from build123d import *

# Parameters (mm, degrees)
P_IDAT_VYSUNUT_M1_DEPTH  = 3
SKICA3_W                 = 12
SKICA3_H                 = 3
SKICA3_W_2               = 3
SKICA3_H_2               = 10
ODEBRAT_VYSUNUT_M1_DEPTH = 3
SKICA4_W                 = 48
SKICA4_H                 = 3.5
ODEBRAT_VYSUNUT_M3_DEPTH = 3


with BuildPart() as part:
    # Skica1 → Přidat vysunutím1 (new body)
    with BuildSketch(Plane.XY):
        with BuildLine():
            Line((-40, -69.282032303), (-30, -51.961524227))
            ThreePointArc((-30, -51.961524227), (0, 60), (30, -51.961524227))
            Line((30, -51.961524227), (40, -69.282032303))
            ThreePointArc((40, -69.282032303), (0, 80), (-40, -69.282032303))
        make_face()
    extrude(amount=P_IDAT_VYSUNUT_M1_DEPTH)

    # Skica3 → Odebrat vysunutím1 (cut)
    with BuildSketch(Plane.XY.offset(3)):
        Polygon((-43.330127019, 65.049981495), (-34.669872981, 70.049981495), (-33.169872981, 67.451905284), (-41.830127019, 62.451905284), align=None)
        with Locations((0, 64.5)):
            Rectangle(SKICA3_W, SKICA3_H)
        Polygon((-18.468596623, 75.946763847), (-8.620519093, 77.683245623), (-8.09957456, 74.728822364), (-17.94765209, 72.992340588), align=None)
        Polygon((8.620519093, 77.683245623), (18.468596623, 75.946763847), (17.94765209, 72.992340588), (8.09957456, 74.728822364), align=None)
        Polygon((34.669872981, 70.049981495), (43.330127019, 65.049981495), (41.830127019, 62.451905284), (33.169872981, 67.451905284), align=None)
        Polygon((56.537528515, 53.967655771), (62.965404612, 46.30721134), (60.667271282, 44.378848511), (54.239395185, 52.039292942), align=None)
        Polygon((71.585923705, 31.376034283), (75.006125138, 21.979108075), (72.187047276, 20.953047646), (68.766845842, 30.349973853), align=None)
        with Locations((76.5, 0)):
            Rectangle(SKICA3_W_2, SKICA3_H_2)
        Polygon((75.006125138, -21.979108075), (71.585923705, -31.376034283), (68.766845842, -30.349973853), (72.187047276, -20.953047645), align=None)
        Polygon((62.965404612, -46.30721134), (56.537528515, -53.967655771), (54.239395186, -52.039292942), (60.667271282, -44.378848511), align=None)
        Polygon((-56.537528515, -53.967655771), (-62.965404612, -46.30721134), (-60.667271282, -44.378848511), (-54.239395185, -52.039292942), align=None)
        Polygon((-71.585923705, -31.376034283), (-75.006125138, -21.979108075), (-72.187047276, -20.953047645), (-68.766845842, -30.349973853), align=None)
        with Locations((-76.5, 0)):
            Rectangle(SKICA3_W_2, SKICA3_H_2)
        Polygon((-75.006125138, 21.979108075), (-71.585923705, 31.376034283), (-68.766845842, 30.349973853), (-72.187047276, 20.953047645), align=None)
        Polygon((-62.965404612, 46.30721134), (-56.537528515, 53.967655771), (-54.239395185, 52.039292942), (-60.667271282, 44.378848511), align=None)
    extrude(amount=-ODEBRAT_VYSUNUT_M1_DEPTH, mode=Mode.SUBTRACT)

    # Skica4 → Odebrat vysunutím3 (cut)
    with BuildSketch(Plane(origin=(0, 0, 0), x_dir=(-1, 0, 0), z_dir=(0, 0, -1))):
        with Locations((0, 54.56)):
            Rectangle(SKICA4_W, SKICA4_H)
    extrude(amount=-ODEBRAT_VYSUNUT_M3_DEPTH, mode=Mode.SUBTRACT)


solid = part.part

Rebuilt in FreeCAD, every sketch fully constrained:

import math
import FreeCAD as App
import Part
import Sketcher
from FreeCAD import Vector
Q = App.Units.Quantity

doc = App.newDocument("Part")
body = doc.addObject("PartDesign::Body", "Body")

sketch1 = body.newObject("Sketcher::SketchObject", "Sketch")
sketch1.AttachmentSupport = (doc.getObject("XY_Plane"), [""])
sketch1.MapMode = "FlatFace"
sketch1.addGeometry(Part.LineSegment(Vector(-40, -69.282032, 0), Vector(-30, -51.961524, 0)), False)
sketch1.addGeometry(Part.ArcOfCircle(Part.Circle(Vector(0, 0, 0), Vector(0, 0, 1), 60), math.radians(-60), math.radians(240)), False)
sketch1.addGeometry(Part.LineSegment(Vector(30, -51.961524, 0), Vector(40, -69.282032, 0)), False)
sketch1.addGeometry(Part.ArcOfCircle(Part.Circle(Vector(0, 0, 0), Vector(0, 0, 1), 80), math.radians(-60), math.radians(240)), False)
sketch1.addConstraint(Sketcher.Constraint("Coincident", 0, 2, 1, 2))
sketch1.addConstraint(Sketcher.Constraint("Coincident", 1, 1, 2, 1))
sketch1.addConstraint(Sketcher.Constraint("Coincident", 2, 2, 3, 1))
sketch1.addConstraint(Sketcher.Constraint("Coincident", 3, 2, 0, 1))
sketch1.addConstraint(Sketcher.Constraint("Coincident", 1, 3, -1, 1))
sketch1.addConstraint(Sketcher.Constraint("Coincident", 3, 3, -1, 1))
sketch1.addConstraint(Sketcher.Constraint("Horizontal", 0, 2, 1, 1))
sketch1.addConstraint(Sketcher.Constraint("Horizontal", 2, 2, 3, 2))
sketch1.addConstraint(Sketcher.Constraint("Radius", 1, 60.0))
sketch1.addConstraint(Sketcher.Constraint("Radius", 3, 80.0))
sketch1.addConstraint(Sketcher.Constraint("Angle", 0, Q("60 deg")))
sketch1.addConstraint(Sketcher.Constraint("DistanceX", 0, 2, -1, 1, 30.0))
pad1 = body.newObject("PartDesign::Pad", "Pad")
pad1.Profile = sketch1
pad1.Length = 3

sketch2 = body.newObject("Sketcher::SketchObject", "Sketch001")
sketch2.AttachmentSupport = (doc.getObject("XY_Plane"), [""])
sketch2.MapMode = "FlatFace"
sketch2.AttachmentOffset = App.Placement(Vector(0, 0, 3), App.Rotation())
sketch2.addGeometry(Part.LineSegment(Vector(-34.669873, 70.049981, 0), Vector(-43.330127, 65.049981, 0)), False)
sketch2.addGeometry(Part.LineSegment(Vector(-43.330127, 65.049981, 0), Vector(-41.830127, 62.451905, 0)), False)
sketch2.addGeometry(Part.LineSegment(Vector(-41.830127, 62.451905, 0), Vector(-33.169873, 67.451905, 0)), False)
sketch2.addGeometry(Part.LineSegment(Vector(-33.169873, 67.451905, 0), Vector(-34.669873, 70.049981, 0)), False)
sketch2.addGeometry(Part.LineSegment(Vector(-6, 66, 0), Vector(-6, 63, 0)), False)
sketch2.addGeometry(Part.LineSegment(Vector(-6, 63, 0), Vector(6, 63, 0)), False)
sketch2.addGeometry(Part.LineSegment(Vector(6, 63, 0), Vector(6, 66, 0)), False)
sketch2.addGeometry(Part.LineSegment(Vector(6, 66, 0), Vector(-6, 66, 0)), False)
sketch2.addGeometry(Part.LineSegment(Vector(-8.620519, 77.683246, 0), Vector(-18.468597, 75.946764, 0)), False)
sketch2.addGeometry(Part.LineSegment(Vector(-18.468597, 75.946764, 0), Vector(-17.947652, 72.992341, 0)), False)
sketch2.addGeometry(Part.LineSegment(Vector(-17.947652, 72.992341, 0), Vector(-8.099575, 74.728822, 0)), False)
sketch2.addGeometry(Part.LineSegment(Vector(-8.099575, 74.728822, 0), Vector(-8.620519, 77.683246, 0)), False)
sketch2.addGeometry(Part.LineSegment(Vector(18.468597, 75.946764, 0), Vector(8.620519, 77.683246, 0)), False)
sketch2.addGeometry(Part.LineSegment(Vector(8.620519, 77.683246, 0), Vector(8.099575, 74.728822, 0)), False)
sketch2.addGeometry(Part.LineSegment(Vector(8.099575, 74.728822, 0), Vector(17.947652, 72.992341, 0)), False)
sketch2.addGeometry(Part.LineSegment(Vector(17.947652, 72.992341, 0), Vector(18.468597, 75.946764, 0)), False)
sketch2.addGeometry(Part.LineSegment(Vector(43.330127, 65.049981, 0), Vector(34.669873, 70.049981, 0)), False)
sketch2.addGeometry(Part.LineSegment(Vector(34.669873, 70.049981, 0), Vector(33.169873, 67.451905, 0)), False)
sketch2.addGeometry(Part.LineSegment(Vector(33.169873, 67.451905, 0), Vector(41.830127, 62.451905, 0)), False)
sketch2.addGeometry(Part.LineSegment(Vector(41.830127, 62.451905, 0), Vector(43.330127, 65.049981, 0)), False)
sketch2.addGeometry(Part.LineSegment(Vector(62.965405, 46.307211, 0), Vector(56.537529, 53.967656, 0)), False)
sketch2.addGeometry(Part.LineSegment(Vector(56.537529, 53.967656, 0), Vector(54.239395, 52.039293, 0)), False)
sketch2.addGeometry(Part.LineSegment(Vector(54.239395, 52.039293, 0), Vector(60.667271, 44.378849, 0)), False)
sketch2.addGeometry(Part.LineSegment(Vector(60.667271, 44.378849, 0), Vector(62.965405, 46.307211, 0)), False)
sketch2.addGeometry(Part.LineSegment(Vector(75.006125, 21.979108, 0), Vector(71.585924, 31.376034, 0)), False)
sketch2.addGeometry(Part.LineSegment(Vector(71.585924, 31.376034, 0), Vector(68.766846, 30.349974, 0)), False)
sketch2.addGeometry(Part.LineSegment(Vector(68.766846, 30.349974, 0), Vector(72.187047, 20.953048, 0)), False)
sketch2.addGeometry(Part.LineSegment(Vector(72.187047, 20.953048, 0), Vector(75.006125, 21.979108, 0)), False)
sketch2.addGeometry(Part.LineSegment(Vector(75, 5, 0), Vector(75, -5, 0)), False)
sketch2.addGeometry(Part.LineSegment(Vector(75, -5, 0), Vector(78, -5, 0)), False)
sketch2.addGeometry(Part.LineSegment(Vector(78, -5, 0), Vector(78, 5, 0)), False)
sketch2.addGeometry(Part.LineSegment(Vector(78, 5, 0), Vector(75, 5, 0)), False)
sketch2.addGeometry(Part.LineSegment(Vector(71.585924, -31.376034, 0), Vector(75.006125, -21.979108, 0)), False)
sketch2.addGeometry(Part.LineSegment(Vector(75.006125, -21.979108, 0), Vector(72.187047, -20.953048, 0)), False)
sketch2.addGeometry(Part.LineSegment(Vector(72.187047, -20.953048, 0), Vector(68.766846, -30.349974, 0)), False)
sketch2.addGeometry(Part.LineSegment(Vector(68.766846, -30.349974, 0), Vector(71.585924, -31.376034, 0)), False)
sketch2.addGeometry(Part.LineSegment(Vector(56.537529, -53.967656, 0), Vector(62.965405, -46.307211, 0)), False)
sketch2.addGeometry(Part.LineSegment(Vector(62.965405, -46.307211, 0), Vector(60.667271, -44.378849, 0)), False)
sketch2.addGeometry(Part.LineSegment(Vector(60.667271, -44.378849, 0), Vector(54.239395, -52.039293, 0)), False)
sketch2.addGeometry(Part.LineSegment(Vector(54.239395, -52.039293, 0), Vector(56.537529, -53.967656, 0)), False)
sketch2.addGeometry(Part.LineSegment(Vector(-62.965405, -46.307211, 0), Vector(-56.537529, -53.967656, 0)), False)
sketch2.addGeometry(Part.LineSegment(Vector(-56.537529, -53.967656, 0), Vector(-54.239395, -52.039293, 0)), False)
sketch2.addGeometry(Part.LineSegment(Vector(-54.239395, -52.039293, 0), Vector(-60.667271, -44.378849, 0)), False)
sketch2.addGeometry(Part.LineSegment(Vector(-60.667271, -44.378849, 0), Vector(-62.965405, -46.307211, 0)), False)
sketch2.addGeometry(Part.LineSegment(Vector(-75.006125, -21.979108, 0), Vector(-71.585924, -31.376034, 0)), False)
sketch2.addGeometry(Part.LineSegment(Vector(-71.585924, -31.376034, 0), Vector(-68.766846, -30.349974, 0)), False)
sketch2.addGeometry(Part.LineSegment(Vector(-68.766846, -30.349974, 0), Vector(-72.187047, -20.953048, 0)), False)
sketch2.addGeometry(Part.LineSegment(Vector(-72.187047, -20.953048, 0), Vector(-75.006125, -21.979108, 0)), False)
sketch2.addGeometry(Part.LineSegment(Vector(-78, 5, 0), Vector(-78, -5, 0)), False)
sketch2.addGeometry(Part.LineSegment(Vector(-78, -5, 0), Vector(-75, -5, 0)), False)
sketch2.addGeometry(Part.LineSegment(Vector(-75, -5, 0), Vector(-75, 5, 0)), False)
sketch2.addGeometry(Part.LineSegment(Vector(-75, 5, 0), Vector(-78, 5, 0)), False)
sketch2.addGeometry(Part.LineSegment(Vector(-71.585924, 31.376034, 0), Vector(-75.006125, 21.979108, 0)), False)
sketch2.addGeometry(Part.LineSegment(Vector(-75.006125, 21.979108, 0), Vector(-72.187047, 20.953048, 0)), False)
sketch2.addGeometry(Part.LineSegment(Vector(-72.187047, 20.953048, 0), Vector(-68.766846, 30.349974, 0)), False)
sketch2.addGeometry(Part.LineSegment(Vector(-68.766846, 30.349974, 0), Vector(-71.585924, 31.376034, 0)), False)
sketch2.addGeometry(Part.LineSegment(Vector(-56.537529, 53.967656, 0), Vector(-62.965405, 46.307211, 0)), False)
sketch2.addGeometry(Part.LineSegment(Vector(-62.965405, 46.307211, 0), Vector(-60.667271, 44.378849, 0)), False)
sketch2.addGeometry(Part.LineSegment(Vector(-60.667271, 44.378849, 0), Vector(-54.239395, 52.039293, 0)), False)
sketch2.addGeometry(Part.LineSegment(Vector(-54.239395, 52.039293, 0), Vector(-56.537529, 53.967656, 0)), False)
sketch2.addConstraint(Sketcher.Constraint("Coincident", 0, 2, 1, 1))
sketch2.addConstraint(Sketcher.Constraint("Coincident", 1, 2, 2, 1))
sketch2.addConstraint(Sketcher.Constraint("Coincident", 2, 2, 3, 1))
sketch2.addConstraint(Sketcher.Constraint("Coincident", 3, 2, 0, 1))
sketch2.addConstraint(Sketcher.Constraint("Coincident", 4, 2, 5, 1))
sketch2.addConstraint(Sketcher.Constraint("Coincident", 5, 2, 6, 1))
sketch2.addConstraint(Sketcher.Constraint("Coincident", 6, 2, 7, 1))
sketch2.addConstraint(Sketcher.Constraint("Coincident", 7, 2, 4, 1))
sketch2.addConstraint(Sketcher.Constraint("Coincident", 8, 2, 9, 1))
sketch2.addConstraint(Sketcher.Constraint("Coincident", 9, 2, 10, 1))
sketch2.addConstraint(Sketcher.Constraint("Coincident", 10, 2, 11, 1))
sketch2.addConstraint(Sketcher.Constraint("Coincident", 11, 2, 8, 1))
sketch2.addConstraint(Sketcher.Constraint("Coincident", 12, 2, 13, 1))
sketch2.addConstraint(Sketcher.Constraint("Coincident", 13, 2, 14, 1))
sketch2.addConstraint(Sketcher.Constraint("Coincident", 14, 2, 15, 1))
sketch2.addConstraint(Sketcher.Constraint("Coincident", 15, 2, 12, 1))
sketch2.addConstraint(Sketcher.Constraint("Coincident", 16, 2, 17, 1))
sketch2.addConstraint(Sketcher.Constraint("Coincident", 17, 2, 18, 1))
sketch2.addConstraint(Sketcher.Constraint("Coincident", 18, 2, 19, 1))
sketch2.addConstraint(Sketcher.Constraint("Coincident", 19, 2, 16, 1))
sketch2.addConstraint(Sketcher.Constraint("Coincident", 20, 2, 21, 1))
sketch2.addConstraint(Sketcher.Constraint("Coincident", 21, 2, 22, 1))
sketch2.addConstraint(Sketcher.Constraint("Coincident", 22, 2, 23, 1))
sketch2.addConstraint(Sketcher.Constraint("Coincident", 23, 2, 20, 1))
sketch2.addConstraint(Sketcher.Constraint("Coincident", 24, 2, 25, 1))
sketch2.addConstraint(Sketcher.Constraint("Coincident", 25, 2, 26, 1))
sketch2.addConstraint(Sketcher.Constraint("Coincident", 26, 2, 27, 1))
sketch2.addConstraint(Sketcher.Constraint("Coincident", 27, 2, 24, 1))
sketch2.addConstraint(Sketcher.Constraint("Coincident", 28, 2, 29, 1))
sketch2.addConstraint(Sketcher.Constraint("Coincident", 29, 2, 30, 1))
sketch2.addConstraint(Sketcher.Constraint("Coincident", 30, 2, 31, 1))
sketch2.addConstraint(Sketcher.Constraint("Coincident", 31, 2, 28, 1))
sketch2.addConstraint(Sketcher.Constraint("Coincident", 32, 2, 33, 1))
sketch2.addConstraint(Sketcher.Constraint("Coincident", 33, 2, 34, 1))
sketch2.addConstraint(Sketcher.Constraint("Coincident", 34, 2, 35, 1))
sketch2.addConstraint(Sketcher.Constraint("Coincident", 35, 2, 32, 1))
sketch2.addConstraint(Sketcher.Constraint("Coincident", 36, 2, 37, 1))
sketch2.addConstraint(Sketcher.Constraint("Coincident", 37, 2, 38, 1))
sketch2.addConstraint(Sketcher.Constraint("Coincident", 38, 2, 39, 1))
sketch2.addConstraint(Sketcher.Constraint("Coincident", 39, 2, 36, 1))
sketch2.addConstraint(Sketcher.Constraint("Coincident", 40, 2, 41, 1))
sketch2.addConstraint(Sketcher.Constraint("Coincident", 41, 2, 42, 1))
sketch2.addConstraint(Sketcher.Constraint("Coincident", 42, 2, 43, 1))
sketch2.addConstraint(Sketcher.Constraint("Coincident", 43, 2, 40, 1))
sketch2.addConstraint(Sketcher.Constraint("Coincident", 44, 2, 45, 1))
sketch2.addConstraint(Sketcher.Constraint("Coincident", 45, 2, 46, 1))
sketch2.addConstraint(Sketcher.Constraint("Coincident", 46, 2, 47, 1))
sketch2.addConstraint(Sketcher.Constraint("Coincident", 47, 2, 44, 1))
sketch2.addConstraint(Sketcher.Constraint("Coincident", 48, 2, 49, 1))
sketch2.addConstraint(Sketcher.Constraint("Coincident", 49, 2, 50, 1))
sketch2.addConstraint(Sketcher.Constraint("Coincident", 50, 2, 51, 1))
sketch2.addConstraint(Sketcher.Constraint("Coincident", 51, 2, 48, 1))
sketch2.addConstraint(Sketcher.Constraint("Coincident", 52, 2, 53, 1))
sketch2.addConstraint(Sketcher.Constraint("Coincident", 53, 2, 54, 1))
sketch2.addConstraint(Sketcher.Constraint("Coincident", 54, 2, 55, 1))
sketch2.addConstraint(Sketcher.Constraint("Coincident", 55, 2, 52, 1))
sketch2.addConstraint(Sketcher.Constraint("Coincident", 56, 2, 57, 1))
sketch2.addConstraint(Sketcher.Constraint("Coincident", 57, 2, 58, 1))
sketch2.addConstraint(Sketcher.Constraint("Coincident", 58, 2, 59, 1))
sketch2.addConstraint(Sketcher.Constraint("Coincident", 59, 2, 56, 1))
sketch2.addConstraint(Sketcher.Constraint("Vertical", 4))
sketch2.addConstraint(Sketcher.Constraint("Horizontal", 5))
sketch2.addConstraint(Sketcher.Constraint("Vertical", 6))
sketch2.addConstraint(Sketcher.Constraint("Horizontal", 7))
sketch2.addConstraint(Sketcher.Constraint("Vertical", 28))
sketch2.addConstraint(Sketcher.Constraint("Horizontal", 29))
sketch2.addConstraint(Sketcher.Constraint("Vertical", 30))
sketch2.addConstraint(Sketcher.Constraint("Horizontal", 31))
sketch2.addConstraint(Sketcher.Constraint("Vertical", 48))
sketch2.addConstraint(Sketcher.Constraint("Horizontal", 49))
sketch2.addConstraint(Sketcher.Constraint("Vertical", 50))
sketch2.addConstraint(Sketcher.Constraint("Horizontal", 51))
sketch2.addConstraint(Sketcher.Constraint("Symmetric", 20, 2, 40, 2, -1, 1))
sketch2.addConstraint(Sketcher.Constraint("Symmetric", 21, 2, 41, 2, -1, 1))
sketch2.addConstraint(Sketcher.Constraint("Symmetric", 22, 2, 42, 2, -1, 1))
sketch2.addConstraint(Sketcher.Constraint("Symmetric", 23, 2, 43, 2, -1, 1))
sketch2.addConstraint(Sketcher.Constraint("Symmetric", 24, 2, 44, 2, -1, 1))
sketch2.addConstraint(Sketcher.Constraint("Symmetric", 25, 2, 45, 2, -1, 1))
sketch2.addConstraint(Sketcher.Constraint("Symmetric", 26, 2, 46, 2, -1, 1))
sketch2.addConstraint(Sketcher.Constraint("Symmetric", 27, 2, 47, 2, -1, 1))
sketch2.addConstraint(Sketcher.Constraint("Symmetric", 30, 2, 48, 2, -1, 1))
sketch2.addConstraint(Sketcher.Constraint("Symmetric", 28, 2, 50, 2, -1, 1))
sketch2.addConstraint(Sketcher.Constraint("Symmetric", 32, 2, 52, 2, -1, 1))
sketch2.addConstraint(Sketcher.Constraint("Symmetric", 33, 2, 53, 2, -1, 1))
sketch2.addConstraint(Sketcher.Constraint("Symmetric", 34, 2, 54, 2, -1, 1))
sketch2.addConstraint(Sketcher.Constraint("Symmetric", 35, 2, 55, 2, -1, 1))
sketch2.addConstraint(Sketcher.Constraint("Symmetric", 36, 2, 56, 2, -1, 1))
sketch2.addConstraint(Sketcher.Constraint("Symmetric", 37, 2, 57, 2, -1, 1))
sketch2.addConstraint(Sketcher.Constraint("Symmetric", 38, 2, 58, 2, -1, 1))
sketch2.addConstraint(Sketcher.Constraint("Symmetric", 39, 2, 59, 2, -1, 1))
sketch2.addConstraint(Sketcher.Constraint("Symmetric", 11, 2, 12, 2, -2))
sketch2.addConstraint(Sketcher.Constraint("Symmetric", 10, 2, 13, 2, -2))
sketch2.addConstraint(Sketcher.Constraint("Symmetric", 9, 2, 14, 2, -2))
sketch2.addConstraint(Sketcher.Constraint("Symmetric", 8, 2, 15, 2, -2))
sketch2.addConstraint(Sketcher.Constraint("Symmetric", 3, 2, 16, 2, -2))
sketch2.addConstraint(Sketcher.Constraint("Symmetric", 2, 2, 17, 2, -2))
sketch2.addConstraint(Sketcher.Constraint("Symmetric", 1, 2, 18, 2, -2))
sketch2.addConstraint(Sketcher.Constraint("Symmetric", 0, 2, 19, 2, -2))
sketch2.addConstraint(Sketcher.Constraint("Symmetric", 39, 2, 40, 2, -2))
sketch2.addConstraint(Sketcher.Constraint("Symmetric", 38, 2, 41, 2, -2))
sketch2.addConstraint(Sketcher.Constraint("Symmetric", 37, 2, 42, 2, -2))
sketch2.addConstraint(Sketcher.Constraint("Symmetric", 36, 2, 43, 2, -2))
sketch2.addConstraint(Sketcher.Constraint("Symmetric", 35, 2, 44, 2, -2))
sketch2.addConstraint(Sketcher.Constraint("Symmetric", 34, 2, 45, 2, -2))
sketch2.addConstraint(Sketcher.Constraint("Symmetric", 33, 2, 46, 2, -2))
sketch2.addConstraint(Sketcher.Constraint("Symmetric", 32, 2, 47, 2, -2))
sketch2.addConstraint(Sketcher.Constraint("Perpendicular", 0, 1))
sketch2.addConstraint(Sketcher.Constraint("Perpendicular", 1, 2))
sketch2.addConstraint(Sketcher.Constraint("Perpendicular", 2, 3))
sketch2.addConstraint(Sketcher.Constraint("Perpendicular", 8, 9))
sketch2.addConstraint(Sketcher.Constraint("Perpendicular", 9, 10))
sketch2.addConstraint(Sketcher.Constraint("Perpendicular", 10, 11))
sketch2.addConstraint(Sketcher.Constraint("Perpendicular", 20, 21))
sketch2.addConstraint(Sketcher.Constraint("Perpendicular", 21, 22))
sketch2.addConstraint(Sketcher.Constraint("Perpendicular", 22, 23))
sketch2.addConstraint(Sketcher.Constraint("Perpendicular", 24, 25))
sketch2.addConstraint(Sketcher.Constraint("Perpendicular", 25, 26))
sketch2.addConstraint(Sketcher.Constraint("Perpendicular", 26, 27))
sketch2.addConstraint(Sketcher.Constraint("Horizontal", 29, 2, 48, 2))
sketch2.addConstraint(Sketcher.Constraint("Equal", 51, 4))
sketch2.addConstraint(Sketcher.Constraint("Equal", 2, 8))
sketch2.addConstraint(Sketcher.Constraint("Equal", 3, 9))
sketch2.addConstraint(Sketcher.Constraint("Equal", 18, 20))
sketch2.addConstraint(Sketcher.Constraint("Equal", 19, 21))
sketch2.addConstraint(Sketcher.Constraint("Equal", 22, 24))
sketch2.addConstraint(Sketcher.Constraint("Equal", 23, 25))
sketch2.addConstraint(Sketcher.Constraint("DistanceX", 5, 1, 5, 2, 12.0))
sketch2.addConstraint(Sketcher.Constraint("DistanceX", 29, 1, 29, 2, 3.0))
sketch2.addConstraint(Sketcher.Constraint("DistanceY", 28, 2, 28, 1, 10.0))
sketch2.addConstraint(Sketcher.Constraint("Angle", 0, Q("-150 deg")))
sketch2.addConstraint(Sketcher.Constraint("Angle", 8, Q("-170 deg")))
sketch2.addConstraint(Sketcher.Constraint("Angle", 20, Q("130 deg")))
sketch2.addConstraint(Sketcher.Constraint("Angle", 24, Q("110 deg")))
sketch2.addConstraint(Sketcher.Constraint("Distance", 0, 10.0))
sketch2.addConstraint(Sketcher.Constraint("Distance", 1, 3.0))
sketch2.addConstraint(Sketcher.Constraint("DistanceX", 4, 2, -1, 1, 6.0))
sketch2.addConstraint(Sketcher.Constraint("DistanceY", -1, 1, 4, 2, 63.0))
sketch2.addConstraint(Sketcher.Constraint("DistanceX", -1, 1, 28, 2, 75.0))
sketch2.addConstraint(Sketcher.Constraint("DistanceX", 13, 2, 16, 2, 26.570298))
sketch2.addConstraint(Sketcher.Constraint("DistanceX", 18, 2, 20, 2, 14.707401))
sketch2.addConstraint(Sketcher.Constraint("DistanceY", 26, 2, 22, 2, 23.425801))
sketch2.addConstraint(Sketcher.Constraint("DistanceX", 40, 2, 37, 2, 117.2048))
sketch2.addConstraint(Sketcher.Constraint("DistanceY", 41, 2, 1, 2, 114.491198))
sketch2.addConstraint(Sketcher.Constraint("DistanceY", -1, 1, 0, 2, 65.049981))
sketch2.addConstraint(Sketcher.Constraint("DistanceY", -1, 1, 9, 2, 72.992341))
sketch2.addConstraint(Sketcher.Constraint("DistanceX", 23, 2, 24, 2, 8.620519))
pocket1 = body.newObject("PartDesign::Pocket", "Pocket")
pocket1.Profile = sketch2
pocket1.Length = 3

sketch3 = body.newObject("Sketcher::SketchObject", "Sketch002")
sketch3.AttachmentSupport = (doc.getObject("XY_Plane"), [""])
sketch3.MapMode = "FlatFace"
sketch3.addGeometry(Part.LineSegment(Vector(24, 56.31, 0), Vector(24, 52.81, 0)), False)
sketch3.addGeometry(Part.LineSegment(Vector(24, 52.81, 0), Vector(-24, 52.81, 0)), False)
sketch3.addGeometry(Part.LineSegment(Vector(-24, 52.81, 0), Vector(-24, 56.31, 0)), False)
sketch3.addGeometry(Part.LineSegment(Vector(-24, 56.31, 0), Vector(24, 56.31, 0)), False)
sketch3.addConstraint(Sketcher.Constraint("Coincident", 0, 2, 1, 1))
sketch3.addConstraint(Sketcher.Constraint("Coincident", 1, 2, 2, 1))
sketch3.addConstraint(Sketcher.Constraint("Coincident", 2, 2, 3, 1))
sketch3.addConstraint(Sketcher.Constraint("Coincident", 3, 2, 0, 1))
sketch3.addConstraint(Sketcher.Constraint("Vertical", 0))
sketch3.addConstraint(Sketcher.Constraint("Horizontal", 1))
sketch3.addConstraint(Sketcher.Constraint("Vertical", 2))
sketch3.addConstraint(Sketcher.Constraint("Horizontal", 3))
sketch3.addConstraint(Sketcher.Constraint("DistanceX", 1, 2, 1, 1, 48.0))
sketch3.addConstraint(Sketcher.Constraint("DistanceY", 0, 2, 0, 1, 3.5))
sketch3.addConstraint(Sketcher.Constraint("DistanceX", -1, 1, 0, 2, 24.0))
sketch3.addConstraint(Sketcher.Constraint("DistanceY", -1, 1, 0, 2, 52.81))
pocket2 = body.newObject("PartDesign::Pocket", "Pocket001")
pocket2.Profile = sketch3
pocket2.Length = 3
pocket2.Reversed = True

doc.recompute()
